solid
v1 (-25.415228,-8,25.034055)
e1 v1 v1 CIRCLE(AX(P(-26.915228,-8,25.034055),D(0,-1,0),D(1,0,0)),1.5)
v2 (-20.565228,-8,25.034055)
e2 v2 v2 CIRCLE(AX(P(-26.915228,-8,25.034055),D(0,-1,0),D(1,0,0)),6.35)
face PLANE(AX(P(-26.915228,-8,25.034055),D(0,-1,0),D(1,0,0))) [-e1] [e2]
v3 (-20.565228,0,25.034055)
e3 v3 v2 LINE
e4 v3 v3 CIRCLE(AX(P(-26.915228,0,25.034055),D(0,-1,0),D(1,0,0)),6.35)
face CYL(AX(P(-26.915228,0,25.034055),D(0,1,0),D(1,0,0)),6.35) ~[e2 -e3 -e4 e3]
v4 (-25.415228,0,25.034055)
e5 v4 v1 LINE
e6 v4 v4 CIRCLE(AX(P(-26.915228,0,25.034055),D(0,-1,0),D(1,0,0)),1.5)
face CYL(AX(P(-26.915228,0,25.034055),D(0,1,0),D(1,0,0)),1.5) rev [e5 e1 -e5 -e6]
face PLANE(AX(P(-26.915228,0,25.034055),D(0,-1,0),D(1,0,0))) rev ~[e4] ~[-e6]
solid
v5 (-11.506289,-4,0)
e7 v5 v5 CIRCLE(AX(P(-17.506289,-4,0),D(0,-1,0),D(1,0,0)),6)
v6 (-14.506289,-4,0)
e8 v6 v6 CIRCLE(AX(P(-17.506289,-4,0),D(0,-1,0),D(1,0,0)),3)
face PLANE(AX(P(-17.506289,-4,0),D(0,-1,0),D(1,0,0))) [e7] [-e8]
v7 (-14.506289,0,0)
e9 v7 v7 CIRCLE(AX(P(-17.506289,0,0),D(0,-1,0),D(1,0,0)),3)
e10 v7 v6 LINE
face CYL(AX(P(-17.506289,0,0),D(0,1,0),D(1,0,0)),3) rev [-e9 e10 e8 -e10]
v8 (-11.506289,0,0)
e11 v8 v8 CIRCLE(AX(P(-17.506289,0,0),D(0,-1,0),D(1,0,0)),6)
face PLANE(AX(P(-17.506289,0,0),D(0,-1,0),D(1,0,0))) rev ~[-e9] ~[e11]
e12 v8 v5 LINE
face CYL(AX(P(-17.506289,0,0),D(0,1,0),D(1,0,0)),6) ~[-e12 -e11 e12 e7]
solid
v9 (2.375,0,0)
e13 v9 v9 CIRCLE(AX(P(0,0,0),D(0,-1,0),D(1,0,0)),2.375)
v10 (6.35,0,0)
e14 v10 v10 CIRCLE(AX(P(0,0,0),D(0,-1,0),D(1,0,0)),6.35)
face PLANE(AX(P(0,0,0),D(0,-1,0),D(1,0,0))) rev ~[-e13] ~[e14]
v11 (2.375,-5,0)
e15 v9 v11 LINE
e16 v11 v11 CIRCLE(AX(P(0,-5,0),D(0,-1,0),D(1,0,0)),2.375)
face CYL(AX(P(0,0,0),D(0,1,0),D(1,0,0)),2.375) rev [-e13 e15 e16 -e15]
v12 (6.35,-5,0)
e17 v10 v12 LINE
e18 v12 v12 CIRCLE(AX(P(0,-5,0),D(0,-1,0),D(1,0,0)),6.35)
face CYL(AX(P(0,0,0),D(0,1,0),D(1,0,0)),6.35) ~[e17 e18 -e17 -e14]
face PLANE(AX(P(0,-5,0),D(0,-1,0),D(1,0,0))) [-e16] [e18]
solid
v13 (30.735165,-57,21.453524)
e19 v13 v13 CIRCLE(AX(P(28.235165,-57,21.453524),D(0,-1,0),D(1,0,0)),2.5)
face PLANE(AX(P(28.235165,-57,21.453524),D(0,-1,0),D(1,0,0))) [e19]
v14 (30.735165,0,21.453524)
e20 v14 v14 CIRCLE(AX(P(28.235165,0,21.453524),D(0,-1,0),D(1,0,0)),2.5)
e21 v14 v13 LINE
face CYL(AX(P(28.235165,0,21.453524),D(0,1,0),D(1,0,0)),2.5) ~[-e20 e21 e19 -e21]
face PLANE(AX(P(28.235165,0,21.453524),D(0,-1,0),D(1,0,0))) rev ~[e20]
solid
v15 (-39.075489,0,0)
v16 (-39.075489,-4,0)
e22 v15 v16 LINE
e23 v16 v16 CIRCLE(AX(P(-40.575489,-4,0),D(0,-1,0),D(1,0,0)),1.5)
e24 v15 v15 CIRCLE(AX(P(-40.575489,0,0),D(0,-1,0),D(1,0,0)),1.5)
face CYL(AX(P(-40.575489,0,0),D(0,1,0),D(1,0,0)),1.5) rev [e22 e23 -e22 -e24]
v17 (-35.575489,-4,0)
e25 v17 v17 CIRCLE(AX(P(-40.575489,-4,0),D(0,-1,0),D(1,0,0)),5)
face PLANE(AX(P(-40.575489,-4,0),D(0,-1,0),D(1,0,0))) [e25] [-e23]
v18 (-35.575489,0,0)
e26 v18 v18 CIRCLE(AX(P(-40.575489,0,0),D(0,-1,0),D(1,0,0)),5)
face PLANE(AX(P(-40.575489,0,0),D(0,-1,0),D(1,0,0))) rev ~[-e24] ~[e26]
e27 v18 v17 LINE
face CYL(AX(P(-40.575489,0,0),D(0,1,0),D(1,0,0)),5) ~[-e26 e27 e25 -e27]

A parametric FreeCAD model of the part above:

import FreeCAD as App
import Part
import Sketcher
Q = App.Units.Quantity

doc = App.newDocument("Part")
body = doc.addObject("PartDesign::Body", "Body")

# Sketch on XZ plane
sketch1 = doc.addObject("Sketcher::SketchObject", "Sketch")
body.addObject(sketch1)
sketch1.AttachmentSupport = (doc.XZ_Plane, [""])
sketch1.MapMode = "FlatFace"
sketch1.addGeometry(Part.Circle(App.Vector(0, 0, 0), App.Vector(0, 0, 1), 6.3), False)
sketch1.addGeometry(Part.Circle(App.Vector(0, 0, 0), App.Vector(0, 0, 1), 2.4), False)
sketch1.addConstraint(Sketcher.Constraint("Coincident", 0, 3, -1, 1))
sketch1.addConstraint(Sketcher.Constraint("Coincident", 1, 3, -1, 1))
sketch1.addConstraint(Sketcher.Constraint("Diameter", 0, Q("12.7 mm")))
sketch1.addConstraint(Sketcher.Constraint("Diameter", 1, Q("4.75 mm")))
pad1 = doc.addObject("PartDesign::Pad", "Pad")
body.addObject(pad1)
pad1.Profile = sketch1
pad1.Length = 5
body2 = doc.addObject("PartDesign::Body", "Body001")

# Sketch on XZ plane
sketch2 = doc.addObject("Sketcher::SketchObject", "Sketch001")
body2.addObject(sketch2)
sketch2.AttachmentSupport = (doc.getObject("XZ_Plane001"), [""])
sketch2.MapMode = "FlatFace"
sketch2.addGeometry(Part.Circle(App.Vector(28.2, 21.5, 0), App.Vector(0, 0, 1), 2.5), False)
sketch2.addConstraint(Sketcher.Constraint("Diameter", 0, Q("5 mm")))
sketch2.addConstraint(Sketcher.Constraint("DistanceX", -1, 1, 0, 3, Q("28.235165 mm")))
sketch2.addConstraint(Sketcher.Constraint("DistanceY", -1, 1, 0, 3, Q("21.453524 mm")))
pad2 = doc.addObject("PartDesign::Pad", "Pad001")
body2.addObject(pad2)
pad2.Profile = sketch2
pad2.Length = 57
body3 = doc.addObject("PartDesign::Body", "Body002")

# Sketch on XZ plane
sketch3 = doc.addObject("Sketcher::SketchObject", "Sketch002")
body3.addObject(sketch3)
sketch3.AttachmentSupport = (doc.getObject("XZ_Plane002"), [""])
sketch3.MapMode = "FlatFace"
sketch3.addGeometry(Part.Circle(App.Vector(-40.6, 0, 0), App.Vector(0, 0, 1), 5), False)
sketch3.addGeometry(Part.Circle(App.Vector(-40.6, 0, 0), App.Vector(0, 0, 1), 1.5), False)
sketch3.addConstraint(Sketcher.Constraint("Coincident", 1, 3, 0, 3))
sketch3.addConstraint(Sketcher.Constraint("PointOnObject", 0, 3, -1))
sketch3.addConstraint(Sketcher.Constraint("Diameter", 0, Q("10 mm")))
sketch3.addConstraint(Sketcher.Constraint("Diameter", 1, Q("3 mm")))
sketch3.addConstraint(Sketcher.Constraint("DistanceX", 0, 3, -1, 1, Q("40.575489 mm")))
pad3 = doc.addObject("PartDesign::Pad", "Pad002")
body3.addObject(pad3)
pad3.Profile = sketch3
pad3.Length = 4
body4 = doc.addObject("PartDesign::Body", "Body003")

# Sketch on XZ plane
sketch4 = doc.addObject("Sketcher::SketchObject", "Sketch003")
body4.addObject(sketch4)
sketch4.AttachmentSupport = (doc.getObject("XZ_Plane003"), [""])
sketch4.MapMode = "FlatFace"
sketch4.addGeometry(Part.Circle(App.Vector(-17.5, 0, 0), App.Vector(0, 0, 1), 6), False)
sketch4.addGeometry(Part.Circle(App.Vector(-17.5, 0, 0), App.Vector(0, 0, 1), 3), False)
sketch4.addConstraint(Sketcher.Constraint("Coincident", 1, 3, 0, 3))
sketch4.addConstraint(Sketcher.Constraint("PointOnObject", 0, 3, -1))
sketch4.addConstraint(Sketcher.Constraint("Diameter", 0, Q("12 mm")))
sketch4.addConstraint(Sketcher.Constraint("Diameter", 1, Q("6 mm")))
sketch4.addConstraint(Sketcher.Constraint("DistanceX", 0, 3, -1, 1, Q("17.506289 mm")))
pad4 = doc.addObject("PartDesign::Pad", "Pad003")
body4.addObject(pad4)
pad4.Profile = sketch4
pad4.Length = 4
body5 = doc.addObject("PartDesign::Body", "Body004")

# Sketch on XZ plane
sketch5 = doc.addObject("Sketcher::SketchObject", "Sketch004")
body5.addObject(sketch5)
sketch5.AttachmentSupport = (doc.getObject("XZ_Plane004"), [""])
sketch5.MapMode = "FlatFace"
sketch5.addGeometry(Part.Circle(App.Vector(-26.9, 25, 0), App.Vector(0, 0, 1), 6.3), False)
sketch5.addGeometry(Part.Circle(App.Vector(-26.9, 25, 0), App.Vector(0, 0, 1), 1.5), False)
sketch5.addConstraint(Sketcher.Constraint("Coincident", 1, 3, 0, 3))
sketch5.addConstraint(Sketcher.Constraint("Diameter", 1, Q("3 mm")))
sketch5.addConstraint(Sketcher.Constraint("Diameter", 0, Q("12.7 mm")))
sketch5.addConstraint(Sketcher.Constraint("DistanceX", 0, 3, -1, 1, Q("26.915228 mm")))
sketch5.addConstraint(Sketcher.Constraint("DistanceY", -1, 1, 0, 3, Q("25.034055 mm")))
pad5 = doc.addObject("PartDesign::Pad", "Pad004")
body5.addObject(pad5)
pad5.Profile = sketch5
pad5.Length = 8

doc.recompute()
